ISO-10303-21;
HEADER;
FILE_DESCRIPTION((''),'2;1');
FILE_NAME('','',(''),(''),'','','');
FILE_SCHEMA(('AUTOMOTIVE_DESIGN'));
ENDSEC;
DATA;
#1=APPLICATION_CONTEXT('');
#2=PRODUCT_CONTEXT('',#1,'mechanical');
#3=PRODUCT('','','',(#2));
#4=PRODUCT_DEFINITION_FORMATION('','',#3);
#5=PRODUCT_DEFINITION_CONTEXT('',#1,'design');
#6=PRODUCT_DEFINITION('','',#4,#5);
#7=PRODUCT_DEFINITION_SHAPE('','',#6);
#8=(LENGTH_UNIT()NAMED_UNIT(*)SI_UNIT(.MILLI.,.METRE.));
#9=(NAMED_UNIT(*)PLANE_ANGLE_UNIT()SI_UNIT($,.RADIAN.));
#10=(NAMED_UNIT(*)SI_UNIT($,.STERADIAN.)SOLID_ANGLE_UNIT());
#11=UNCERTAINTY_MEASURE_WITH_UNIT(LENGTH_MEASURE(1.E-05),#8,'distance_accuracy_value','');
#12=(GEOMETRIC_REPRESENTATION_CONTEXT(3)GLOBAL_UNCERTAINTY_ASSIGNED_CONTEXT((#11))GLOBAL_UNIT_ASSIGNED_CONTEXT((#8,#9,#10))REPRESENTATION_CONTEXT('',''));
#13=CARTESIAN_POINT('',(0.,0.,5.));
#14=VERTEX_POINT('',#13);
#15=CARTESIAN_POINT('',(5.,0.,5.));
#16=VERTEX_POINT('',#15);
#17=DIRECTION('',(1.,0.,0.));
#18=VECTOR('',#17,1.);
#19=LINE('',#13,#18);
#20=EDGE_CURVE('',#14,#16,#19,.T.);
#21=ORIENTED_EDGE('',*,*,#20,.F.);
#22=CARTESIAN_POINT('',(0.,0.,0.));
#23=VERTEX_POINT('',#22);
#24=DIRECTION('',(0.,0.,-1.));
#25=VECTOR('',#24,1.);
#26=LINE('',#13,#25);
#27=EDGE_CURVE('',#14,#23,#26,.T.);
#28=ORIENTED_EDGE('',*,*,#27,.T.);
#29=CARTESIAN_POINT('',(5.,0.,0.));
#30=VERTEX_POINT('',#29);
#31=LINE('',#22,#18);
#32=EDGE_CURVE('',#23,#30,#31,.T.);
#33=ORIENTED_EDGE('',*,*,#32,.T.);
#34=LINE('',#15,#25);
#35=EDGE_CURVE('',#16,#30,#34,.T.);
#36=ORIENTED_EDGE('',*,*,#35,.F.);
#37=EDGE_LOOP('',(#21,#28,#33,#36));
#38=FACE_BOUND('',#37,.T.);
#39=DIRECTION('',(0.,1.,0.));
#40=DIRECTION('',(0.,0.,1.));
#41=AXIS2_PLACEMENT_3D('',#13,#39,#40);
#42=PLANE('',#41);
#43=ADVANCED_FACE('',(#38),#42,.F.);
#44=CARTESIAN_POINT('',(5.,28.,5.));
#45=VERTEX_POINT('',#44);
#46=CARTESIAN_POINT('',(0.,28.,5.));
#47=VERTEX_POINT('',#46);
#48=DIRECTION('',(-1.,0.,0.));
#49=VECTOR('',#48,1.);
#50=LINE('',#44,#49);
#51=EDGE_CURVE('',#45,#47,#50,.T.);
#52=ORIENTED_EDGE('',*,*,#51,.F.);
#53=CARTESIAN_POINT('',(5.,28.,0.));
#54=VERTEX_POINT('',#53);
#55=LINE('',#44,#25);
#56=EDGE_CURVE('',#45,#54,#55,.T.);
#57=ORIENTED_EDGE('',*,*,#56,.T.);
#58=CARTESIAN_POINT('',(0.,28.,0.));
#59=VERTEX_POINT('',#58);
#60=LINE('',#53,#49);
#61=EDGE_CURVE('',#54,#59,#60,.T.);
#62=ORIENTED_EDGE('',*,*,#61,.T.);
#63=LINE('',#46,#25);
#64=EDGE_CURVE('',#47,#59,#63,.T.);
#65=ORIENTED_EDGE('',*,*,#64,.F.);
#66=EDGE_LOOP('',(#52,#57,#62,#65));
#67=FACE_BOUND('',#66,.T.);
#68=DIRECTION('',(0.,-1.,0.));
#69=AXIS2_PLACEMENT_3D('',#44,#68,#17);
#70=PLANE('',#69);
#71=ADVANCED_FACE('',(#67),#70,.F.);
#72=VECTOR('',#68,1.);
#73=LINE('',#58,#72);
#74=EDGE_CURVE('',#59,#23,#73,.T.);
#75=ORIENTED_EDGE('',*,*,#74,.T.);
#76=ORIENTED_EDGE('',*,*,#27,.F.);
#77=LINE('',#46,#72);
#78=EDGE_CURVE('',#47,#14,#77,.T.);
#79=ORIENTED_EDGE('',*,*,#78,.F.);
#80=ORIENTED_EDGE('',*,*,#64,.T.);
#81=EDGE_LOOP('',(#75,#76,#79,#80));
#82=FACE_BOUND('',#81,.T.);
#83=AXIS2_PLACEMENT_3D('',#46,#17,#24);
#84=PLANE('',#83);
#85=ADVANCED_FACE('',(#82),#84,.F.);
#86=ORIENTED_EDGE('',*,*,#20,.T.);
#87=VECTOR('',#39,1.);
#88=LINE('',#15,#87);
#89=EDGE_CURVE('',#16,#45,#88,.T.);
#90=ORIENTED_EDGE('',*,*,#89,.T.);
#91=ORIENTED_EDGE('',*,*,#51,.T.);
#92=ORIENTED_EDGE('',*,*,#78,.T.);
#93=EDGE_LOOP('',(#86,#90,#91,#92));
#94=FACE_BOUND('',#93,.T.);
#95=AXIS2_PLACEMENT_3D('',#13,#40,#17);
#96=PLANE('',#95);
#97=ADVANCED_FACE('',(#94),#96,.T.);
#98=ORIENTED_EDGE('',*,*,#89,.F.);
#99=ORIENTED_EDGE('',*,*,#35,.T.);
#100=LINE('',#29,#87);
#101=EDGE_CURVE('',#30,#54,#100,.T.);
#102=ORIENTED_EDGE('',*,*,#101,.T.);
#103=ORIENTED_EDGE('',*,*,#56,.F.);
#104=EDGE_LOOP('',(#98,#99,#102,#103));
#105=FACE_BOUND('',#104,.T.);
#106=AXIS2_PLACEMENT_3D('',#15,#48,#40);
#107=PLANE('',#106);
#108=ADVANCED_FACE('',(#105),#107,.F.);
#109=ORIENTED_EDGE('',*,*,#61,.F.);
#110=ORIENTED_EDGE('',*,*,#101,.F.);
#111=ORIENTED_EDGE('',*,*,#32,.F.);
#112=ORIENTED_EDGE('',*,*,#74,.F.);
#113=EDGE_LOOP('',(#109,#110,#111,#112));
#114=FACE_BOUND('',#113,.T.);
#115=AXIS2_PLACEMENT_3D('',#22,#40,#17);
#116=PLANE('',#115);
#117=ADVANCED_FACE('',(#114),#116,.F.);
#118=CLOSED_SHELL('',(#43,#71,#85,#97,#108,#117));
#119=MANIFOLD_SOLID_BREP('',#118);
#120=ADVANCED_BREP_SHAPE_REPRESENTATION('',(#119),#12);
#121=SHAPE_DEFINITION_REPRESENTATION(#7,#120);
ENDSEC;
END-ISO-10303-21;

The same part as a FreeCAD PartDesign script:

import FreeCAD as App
import Part
import Sketcher
from FreeCAD import Vector

doc = App.newDocument("Part")
body = doc.addObject("PartDesign::Body", "Body")

# Sketch on XY plane
sketch1 = body.newObject("Sketcher::SketchObject", "Sketch")
sketch1.AttachmentSupport = (doc.getObject("XY_Plane"), [""])
sketch1.MapMode = "FlatFace"
sketch1.addGeometry([
    Part.LineSegment(Vector(0, 28, 0), Vector(0, 0, 0)),
    Part.LineSegment(Vector(0, 0, 0), Vector(5, 0, 0)),
    Part.LineSegment(Vector(5, 0, 0), Vector(5, 28, 0)),
    Part.LineSegment(Vector(5, 28, 0), Vector(0, 28, 0)),
], False)
sketch1.addConstraint([
    Sketcher.Constraint("Coincident", 0, 2, 1, 1),
    Sketcher.Constraint("Coincident", 1, 2, 2, 1),
    Sketcher.Constraint("Coincident", 2, 2, 3, 1),
    Sketcher.Constraint("Coincident", 3, 2, 0, 1),
    Sketcher.Constraint("Vertical", 0),
    Sketcher.Constraint("Horizontal", 1),
    Sketcher.Constraint("Vertical", 2),
    Sketcher.Constraint("Horizontal", 3),
    Sketcher.Constraint("Coincident", 0, 2, -1, 1),
    Sketcher.Constraint("DistanceX", 1, 1, 1, 2, 5.0),
    Sketcher.Constraint("DistanceY", 0, 2, 0, 1, 28.0),
])
pad1 = body.newObject("PartDesign::Pad", "Pad")
pad1.Profile = sketch1
pad1.Length = 5

doc.recompute()
